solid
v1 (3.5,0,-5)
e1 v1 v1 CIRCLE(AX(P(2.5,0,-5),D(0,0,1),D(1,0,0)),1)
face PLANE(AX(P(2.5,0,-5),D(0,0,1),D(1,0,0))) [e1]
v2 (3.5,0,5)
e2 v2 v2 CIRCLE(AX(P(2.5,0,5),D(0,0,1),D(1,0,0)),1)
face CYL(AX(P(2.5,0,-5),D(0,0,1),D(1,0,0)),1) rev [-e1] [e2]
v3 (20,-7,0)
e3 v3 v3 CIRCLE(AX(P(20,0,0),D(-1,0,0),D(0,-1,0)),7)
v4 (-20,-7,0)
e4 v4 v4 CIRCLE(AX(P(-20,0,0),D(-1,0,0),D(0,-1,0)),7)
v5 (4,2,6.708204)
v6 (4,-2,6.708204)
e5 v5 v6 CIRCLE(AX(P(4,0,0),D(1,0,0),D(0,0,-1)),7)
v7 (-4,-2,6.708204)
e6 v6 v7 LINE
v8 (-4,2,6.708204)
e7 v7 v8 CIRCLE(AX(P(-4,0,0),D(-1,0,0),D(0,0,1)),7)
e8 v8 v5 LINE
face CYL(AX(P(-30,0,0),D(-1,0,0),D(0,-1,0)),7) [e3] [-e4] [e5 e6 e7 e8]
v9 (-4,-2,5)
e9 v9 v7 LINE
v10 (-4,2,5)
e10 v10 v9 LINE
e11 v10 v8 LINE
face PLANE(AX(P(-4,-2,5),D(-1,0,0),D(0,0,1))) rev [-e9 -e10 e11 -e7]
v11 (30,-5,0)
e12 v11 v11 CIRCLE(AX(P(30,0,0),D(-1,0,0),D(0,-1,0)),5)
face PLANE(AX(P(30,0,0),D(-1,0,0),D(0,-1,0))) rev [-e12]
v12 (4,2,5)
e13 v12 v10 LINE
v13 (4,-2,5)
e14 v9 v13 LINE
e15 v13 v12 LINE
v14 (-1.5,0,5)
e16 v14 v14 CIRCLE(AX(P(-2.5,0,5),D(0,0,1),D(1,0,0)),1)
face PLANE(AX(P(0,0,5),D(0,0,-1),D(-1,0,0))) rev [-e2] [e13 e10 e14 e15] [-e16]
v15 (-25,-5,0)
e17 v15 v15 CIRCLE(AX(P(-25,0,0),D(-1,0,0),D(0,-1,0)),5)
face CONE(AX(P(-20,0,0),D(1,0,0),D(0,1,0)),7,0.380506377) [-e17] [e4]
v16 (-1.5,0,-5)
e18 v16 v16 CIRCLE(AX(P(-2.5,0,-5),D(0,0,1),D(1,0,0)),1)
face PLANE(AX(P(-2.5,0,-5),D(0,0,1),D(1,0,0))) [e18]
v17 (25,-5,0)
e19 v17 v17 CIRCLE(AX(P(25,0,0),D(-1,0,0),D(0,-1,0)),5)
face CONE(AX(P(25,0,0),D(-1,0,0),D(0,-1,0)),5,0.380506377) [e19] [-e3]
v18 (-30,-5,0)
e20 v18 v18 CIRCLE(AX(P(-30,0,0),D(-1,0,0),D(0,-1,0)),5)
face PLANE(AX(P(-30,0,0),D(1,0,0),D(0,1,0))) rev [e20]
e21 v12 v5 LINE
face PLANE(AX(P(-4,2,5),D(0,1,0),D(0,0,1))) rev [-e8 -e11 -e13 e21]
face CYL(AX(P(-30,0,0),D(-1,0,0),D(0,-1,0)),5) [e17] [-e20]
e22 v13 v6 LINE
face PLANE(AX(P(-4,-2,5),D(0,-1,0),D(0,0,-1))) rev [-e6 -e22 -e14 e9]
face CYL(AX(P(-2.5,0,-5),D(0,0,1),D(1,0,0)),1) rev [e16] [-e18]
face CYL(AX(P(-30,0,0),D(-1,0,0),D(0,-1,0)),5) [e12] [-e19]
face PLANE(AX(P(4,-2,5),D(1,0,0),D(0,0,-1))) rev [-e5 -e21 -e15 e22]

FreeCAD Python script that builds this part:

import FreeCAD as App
import Part
import Sketcher

V = App.Vector


def add_polygon(sketch, points):
    """Adds a closed chain of lines whose ends are joined by coincident constraints."""
    first, n = sketch.GeometryCount, len(points)
    for a, b in zip(points, points[1:] + points[:1]):
        sketch.addGeometry(Part.LineSegment(App.Vector(*a, 0), App.Vector(*b, 0)), False)
    for i in range(n):
        sketch.addConstraint(Sketcher.Constraint("Coincident", first + i, 2, first + (i + 1) % n, 1))

doc = App.newDocument("Part")
body = doc.addObject("PartDesign::Body", "Body")

sketch1 = body.newObject("Sketcher::SketchObject", "Sketch")
sketch1.AttachmentSupport = (doc.getObject("XY_Plane"), [""])
sketch1.MapMode = "FlatFace"
add_polygon(sketch1, [(-30, 0), (30, 0), (30, 5), (25, 5), (20, 7), (-20, 7), (-25, 5), (-30, 5)])
sketch1.addConstraint([
    Sketcher.Constraint("Horizontal", 0),
    Sketcher.Constraint("Vertical", 1),
    Sketcher.Constraint("Horizontal", 2),
    Sketcher.Constraint("Horizontal", 4),
    Sketcher.Constraint("Horizontal", 6),
    Sketcher.Constraint("Vertical", 7),
    Sketcher.Constraint("Symmetric", 0, 2, 7, 2, -1, 1),
    Sketcher.Constraint("Symmetric", 2, 2, 5, 2, -2),
    Sketcher.Constraint("Equal", 6, 1),
    Sketcher.Constraint("Equal", 3, 5),
    Sketcher.Constraint("DistanceX", 0, 1, 0, 2, 60.0),
    Sketcher.Constraint("DistanceX", 2, 2, 2, 1, 5.0),
    Sketcher.Constraint("DistanceX", 4, 2, 4, 1, 40.0),
    Sketcher.Constraint("DistanceY", -1, 1, 3, 2, 7.0),
])
revolution = body.newObject("PartDesign::Revolution", "Revolution")
revolution.Profile = sketch1
revolution.ReferenceAxis = (sketch1, ["H_Axis"])
revolution.Angle = 360

sketch2 = body.newObject("Sketcher::SketchObject", "Sketch001")
sketch2.AttachmentSupport = (doc.getObject("XY_Plane"), [""])
sketch2.MapMode = "FlatFace"
sketch2.AttachmentOffset = App.Placement(V(0, 0, 7), App.Rotation())
add_polygon(sketch2, [(-4, 2), (-4, -2), (4, -2), (4, 2)])
sketch2.addConstraint([
    Sketcher.Constraint("Vertical", 0),
    Sketcher.Constraint("Horizontal", 1),
    Sketcher.Constraint("Vertical", 2),
    Sketcher.Constraint("Horizontal", 3),
    Sketcher.Constraint("Symmetric", 0, 2, 2, 2, -1, 1),
    Sketcher.Constraint("DistanceX", 1, 1, 1, 2, 8.0),
    Sketcher.Constraint("DistanceY", 0, 2, 0, 1, 4.0),
])
pocket1 = body.newObject("PartDesign::Pocket", "Pocket")
pocket1.Profile = sketch2
pocket1.Length = 2

sketch3 = body.newObject("Sketcher::SketchObject", "Sketch002")
sketch3.AttachmentSupport = (doc.getObject("XY_Plane"), [""])
sketch3.MapMode = "FlatFace"
sketch3.AttachmentOffset = App.Placement(V(0, 0, 5), App.Rotation())
sketch3.addGeometry([
    Part.Circle(V(2.5, 0, 0), V(0, 0, 1), 1),
    Part.Circle(V(-2.5, 0, 0), V(0, 0, 1), 1),
], False)
sketch3.addConstraint([
    Sketcher.Constraint("Equal", 0, 1),
    Sketcher.Constraint("Symmetric", 0, 3, 1, 3, -1, 1),
    Sketcher.Constraint("PointOnObject", 0, 3, -1),
    Sketcher.Constraint("Diameter", 0, 2.0),
    Sketcher.Constraint("DistanceX", 1, 3, 0, 3, 5.0),
])
pocket2 = body.newObject("PartDesign::Pocket", "Pocket001")
pocket2.Profile = sketch3
pocket2.Length = 10

doc.recompute()
